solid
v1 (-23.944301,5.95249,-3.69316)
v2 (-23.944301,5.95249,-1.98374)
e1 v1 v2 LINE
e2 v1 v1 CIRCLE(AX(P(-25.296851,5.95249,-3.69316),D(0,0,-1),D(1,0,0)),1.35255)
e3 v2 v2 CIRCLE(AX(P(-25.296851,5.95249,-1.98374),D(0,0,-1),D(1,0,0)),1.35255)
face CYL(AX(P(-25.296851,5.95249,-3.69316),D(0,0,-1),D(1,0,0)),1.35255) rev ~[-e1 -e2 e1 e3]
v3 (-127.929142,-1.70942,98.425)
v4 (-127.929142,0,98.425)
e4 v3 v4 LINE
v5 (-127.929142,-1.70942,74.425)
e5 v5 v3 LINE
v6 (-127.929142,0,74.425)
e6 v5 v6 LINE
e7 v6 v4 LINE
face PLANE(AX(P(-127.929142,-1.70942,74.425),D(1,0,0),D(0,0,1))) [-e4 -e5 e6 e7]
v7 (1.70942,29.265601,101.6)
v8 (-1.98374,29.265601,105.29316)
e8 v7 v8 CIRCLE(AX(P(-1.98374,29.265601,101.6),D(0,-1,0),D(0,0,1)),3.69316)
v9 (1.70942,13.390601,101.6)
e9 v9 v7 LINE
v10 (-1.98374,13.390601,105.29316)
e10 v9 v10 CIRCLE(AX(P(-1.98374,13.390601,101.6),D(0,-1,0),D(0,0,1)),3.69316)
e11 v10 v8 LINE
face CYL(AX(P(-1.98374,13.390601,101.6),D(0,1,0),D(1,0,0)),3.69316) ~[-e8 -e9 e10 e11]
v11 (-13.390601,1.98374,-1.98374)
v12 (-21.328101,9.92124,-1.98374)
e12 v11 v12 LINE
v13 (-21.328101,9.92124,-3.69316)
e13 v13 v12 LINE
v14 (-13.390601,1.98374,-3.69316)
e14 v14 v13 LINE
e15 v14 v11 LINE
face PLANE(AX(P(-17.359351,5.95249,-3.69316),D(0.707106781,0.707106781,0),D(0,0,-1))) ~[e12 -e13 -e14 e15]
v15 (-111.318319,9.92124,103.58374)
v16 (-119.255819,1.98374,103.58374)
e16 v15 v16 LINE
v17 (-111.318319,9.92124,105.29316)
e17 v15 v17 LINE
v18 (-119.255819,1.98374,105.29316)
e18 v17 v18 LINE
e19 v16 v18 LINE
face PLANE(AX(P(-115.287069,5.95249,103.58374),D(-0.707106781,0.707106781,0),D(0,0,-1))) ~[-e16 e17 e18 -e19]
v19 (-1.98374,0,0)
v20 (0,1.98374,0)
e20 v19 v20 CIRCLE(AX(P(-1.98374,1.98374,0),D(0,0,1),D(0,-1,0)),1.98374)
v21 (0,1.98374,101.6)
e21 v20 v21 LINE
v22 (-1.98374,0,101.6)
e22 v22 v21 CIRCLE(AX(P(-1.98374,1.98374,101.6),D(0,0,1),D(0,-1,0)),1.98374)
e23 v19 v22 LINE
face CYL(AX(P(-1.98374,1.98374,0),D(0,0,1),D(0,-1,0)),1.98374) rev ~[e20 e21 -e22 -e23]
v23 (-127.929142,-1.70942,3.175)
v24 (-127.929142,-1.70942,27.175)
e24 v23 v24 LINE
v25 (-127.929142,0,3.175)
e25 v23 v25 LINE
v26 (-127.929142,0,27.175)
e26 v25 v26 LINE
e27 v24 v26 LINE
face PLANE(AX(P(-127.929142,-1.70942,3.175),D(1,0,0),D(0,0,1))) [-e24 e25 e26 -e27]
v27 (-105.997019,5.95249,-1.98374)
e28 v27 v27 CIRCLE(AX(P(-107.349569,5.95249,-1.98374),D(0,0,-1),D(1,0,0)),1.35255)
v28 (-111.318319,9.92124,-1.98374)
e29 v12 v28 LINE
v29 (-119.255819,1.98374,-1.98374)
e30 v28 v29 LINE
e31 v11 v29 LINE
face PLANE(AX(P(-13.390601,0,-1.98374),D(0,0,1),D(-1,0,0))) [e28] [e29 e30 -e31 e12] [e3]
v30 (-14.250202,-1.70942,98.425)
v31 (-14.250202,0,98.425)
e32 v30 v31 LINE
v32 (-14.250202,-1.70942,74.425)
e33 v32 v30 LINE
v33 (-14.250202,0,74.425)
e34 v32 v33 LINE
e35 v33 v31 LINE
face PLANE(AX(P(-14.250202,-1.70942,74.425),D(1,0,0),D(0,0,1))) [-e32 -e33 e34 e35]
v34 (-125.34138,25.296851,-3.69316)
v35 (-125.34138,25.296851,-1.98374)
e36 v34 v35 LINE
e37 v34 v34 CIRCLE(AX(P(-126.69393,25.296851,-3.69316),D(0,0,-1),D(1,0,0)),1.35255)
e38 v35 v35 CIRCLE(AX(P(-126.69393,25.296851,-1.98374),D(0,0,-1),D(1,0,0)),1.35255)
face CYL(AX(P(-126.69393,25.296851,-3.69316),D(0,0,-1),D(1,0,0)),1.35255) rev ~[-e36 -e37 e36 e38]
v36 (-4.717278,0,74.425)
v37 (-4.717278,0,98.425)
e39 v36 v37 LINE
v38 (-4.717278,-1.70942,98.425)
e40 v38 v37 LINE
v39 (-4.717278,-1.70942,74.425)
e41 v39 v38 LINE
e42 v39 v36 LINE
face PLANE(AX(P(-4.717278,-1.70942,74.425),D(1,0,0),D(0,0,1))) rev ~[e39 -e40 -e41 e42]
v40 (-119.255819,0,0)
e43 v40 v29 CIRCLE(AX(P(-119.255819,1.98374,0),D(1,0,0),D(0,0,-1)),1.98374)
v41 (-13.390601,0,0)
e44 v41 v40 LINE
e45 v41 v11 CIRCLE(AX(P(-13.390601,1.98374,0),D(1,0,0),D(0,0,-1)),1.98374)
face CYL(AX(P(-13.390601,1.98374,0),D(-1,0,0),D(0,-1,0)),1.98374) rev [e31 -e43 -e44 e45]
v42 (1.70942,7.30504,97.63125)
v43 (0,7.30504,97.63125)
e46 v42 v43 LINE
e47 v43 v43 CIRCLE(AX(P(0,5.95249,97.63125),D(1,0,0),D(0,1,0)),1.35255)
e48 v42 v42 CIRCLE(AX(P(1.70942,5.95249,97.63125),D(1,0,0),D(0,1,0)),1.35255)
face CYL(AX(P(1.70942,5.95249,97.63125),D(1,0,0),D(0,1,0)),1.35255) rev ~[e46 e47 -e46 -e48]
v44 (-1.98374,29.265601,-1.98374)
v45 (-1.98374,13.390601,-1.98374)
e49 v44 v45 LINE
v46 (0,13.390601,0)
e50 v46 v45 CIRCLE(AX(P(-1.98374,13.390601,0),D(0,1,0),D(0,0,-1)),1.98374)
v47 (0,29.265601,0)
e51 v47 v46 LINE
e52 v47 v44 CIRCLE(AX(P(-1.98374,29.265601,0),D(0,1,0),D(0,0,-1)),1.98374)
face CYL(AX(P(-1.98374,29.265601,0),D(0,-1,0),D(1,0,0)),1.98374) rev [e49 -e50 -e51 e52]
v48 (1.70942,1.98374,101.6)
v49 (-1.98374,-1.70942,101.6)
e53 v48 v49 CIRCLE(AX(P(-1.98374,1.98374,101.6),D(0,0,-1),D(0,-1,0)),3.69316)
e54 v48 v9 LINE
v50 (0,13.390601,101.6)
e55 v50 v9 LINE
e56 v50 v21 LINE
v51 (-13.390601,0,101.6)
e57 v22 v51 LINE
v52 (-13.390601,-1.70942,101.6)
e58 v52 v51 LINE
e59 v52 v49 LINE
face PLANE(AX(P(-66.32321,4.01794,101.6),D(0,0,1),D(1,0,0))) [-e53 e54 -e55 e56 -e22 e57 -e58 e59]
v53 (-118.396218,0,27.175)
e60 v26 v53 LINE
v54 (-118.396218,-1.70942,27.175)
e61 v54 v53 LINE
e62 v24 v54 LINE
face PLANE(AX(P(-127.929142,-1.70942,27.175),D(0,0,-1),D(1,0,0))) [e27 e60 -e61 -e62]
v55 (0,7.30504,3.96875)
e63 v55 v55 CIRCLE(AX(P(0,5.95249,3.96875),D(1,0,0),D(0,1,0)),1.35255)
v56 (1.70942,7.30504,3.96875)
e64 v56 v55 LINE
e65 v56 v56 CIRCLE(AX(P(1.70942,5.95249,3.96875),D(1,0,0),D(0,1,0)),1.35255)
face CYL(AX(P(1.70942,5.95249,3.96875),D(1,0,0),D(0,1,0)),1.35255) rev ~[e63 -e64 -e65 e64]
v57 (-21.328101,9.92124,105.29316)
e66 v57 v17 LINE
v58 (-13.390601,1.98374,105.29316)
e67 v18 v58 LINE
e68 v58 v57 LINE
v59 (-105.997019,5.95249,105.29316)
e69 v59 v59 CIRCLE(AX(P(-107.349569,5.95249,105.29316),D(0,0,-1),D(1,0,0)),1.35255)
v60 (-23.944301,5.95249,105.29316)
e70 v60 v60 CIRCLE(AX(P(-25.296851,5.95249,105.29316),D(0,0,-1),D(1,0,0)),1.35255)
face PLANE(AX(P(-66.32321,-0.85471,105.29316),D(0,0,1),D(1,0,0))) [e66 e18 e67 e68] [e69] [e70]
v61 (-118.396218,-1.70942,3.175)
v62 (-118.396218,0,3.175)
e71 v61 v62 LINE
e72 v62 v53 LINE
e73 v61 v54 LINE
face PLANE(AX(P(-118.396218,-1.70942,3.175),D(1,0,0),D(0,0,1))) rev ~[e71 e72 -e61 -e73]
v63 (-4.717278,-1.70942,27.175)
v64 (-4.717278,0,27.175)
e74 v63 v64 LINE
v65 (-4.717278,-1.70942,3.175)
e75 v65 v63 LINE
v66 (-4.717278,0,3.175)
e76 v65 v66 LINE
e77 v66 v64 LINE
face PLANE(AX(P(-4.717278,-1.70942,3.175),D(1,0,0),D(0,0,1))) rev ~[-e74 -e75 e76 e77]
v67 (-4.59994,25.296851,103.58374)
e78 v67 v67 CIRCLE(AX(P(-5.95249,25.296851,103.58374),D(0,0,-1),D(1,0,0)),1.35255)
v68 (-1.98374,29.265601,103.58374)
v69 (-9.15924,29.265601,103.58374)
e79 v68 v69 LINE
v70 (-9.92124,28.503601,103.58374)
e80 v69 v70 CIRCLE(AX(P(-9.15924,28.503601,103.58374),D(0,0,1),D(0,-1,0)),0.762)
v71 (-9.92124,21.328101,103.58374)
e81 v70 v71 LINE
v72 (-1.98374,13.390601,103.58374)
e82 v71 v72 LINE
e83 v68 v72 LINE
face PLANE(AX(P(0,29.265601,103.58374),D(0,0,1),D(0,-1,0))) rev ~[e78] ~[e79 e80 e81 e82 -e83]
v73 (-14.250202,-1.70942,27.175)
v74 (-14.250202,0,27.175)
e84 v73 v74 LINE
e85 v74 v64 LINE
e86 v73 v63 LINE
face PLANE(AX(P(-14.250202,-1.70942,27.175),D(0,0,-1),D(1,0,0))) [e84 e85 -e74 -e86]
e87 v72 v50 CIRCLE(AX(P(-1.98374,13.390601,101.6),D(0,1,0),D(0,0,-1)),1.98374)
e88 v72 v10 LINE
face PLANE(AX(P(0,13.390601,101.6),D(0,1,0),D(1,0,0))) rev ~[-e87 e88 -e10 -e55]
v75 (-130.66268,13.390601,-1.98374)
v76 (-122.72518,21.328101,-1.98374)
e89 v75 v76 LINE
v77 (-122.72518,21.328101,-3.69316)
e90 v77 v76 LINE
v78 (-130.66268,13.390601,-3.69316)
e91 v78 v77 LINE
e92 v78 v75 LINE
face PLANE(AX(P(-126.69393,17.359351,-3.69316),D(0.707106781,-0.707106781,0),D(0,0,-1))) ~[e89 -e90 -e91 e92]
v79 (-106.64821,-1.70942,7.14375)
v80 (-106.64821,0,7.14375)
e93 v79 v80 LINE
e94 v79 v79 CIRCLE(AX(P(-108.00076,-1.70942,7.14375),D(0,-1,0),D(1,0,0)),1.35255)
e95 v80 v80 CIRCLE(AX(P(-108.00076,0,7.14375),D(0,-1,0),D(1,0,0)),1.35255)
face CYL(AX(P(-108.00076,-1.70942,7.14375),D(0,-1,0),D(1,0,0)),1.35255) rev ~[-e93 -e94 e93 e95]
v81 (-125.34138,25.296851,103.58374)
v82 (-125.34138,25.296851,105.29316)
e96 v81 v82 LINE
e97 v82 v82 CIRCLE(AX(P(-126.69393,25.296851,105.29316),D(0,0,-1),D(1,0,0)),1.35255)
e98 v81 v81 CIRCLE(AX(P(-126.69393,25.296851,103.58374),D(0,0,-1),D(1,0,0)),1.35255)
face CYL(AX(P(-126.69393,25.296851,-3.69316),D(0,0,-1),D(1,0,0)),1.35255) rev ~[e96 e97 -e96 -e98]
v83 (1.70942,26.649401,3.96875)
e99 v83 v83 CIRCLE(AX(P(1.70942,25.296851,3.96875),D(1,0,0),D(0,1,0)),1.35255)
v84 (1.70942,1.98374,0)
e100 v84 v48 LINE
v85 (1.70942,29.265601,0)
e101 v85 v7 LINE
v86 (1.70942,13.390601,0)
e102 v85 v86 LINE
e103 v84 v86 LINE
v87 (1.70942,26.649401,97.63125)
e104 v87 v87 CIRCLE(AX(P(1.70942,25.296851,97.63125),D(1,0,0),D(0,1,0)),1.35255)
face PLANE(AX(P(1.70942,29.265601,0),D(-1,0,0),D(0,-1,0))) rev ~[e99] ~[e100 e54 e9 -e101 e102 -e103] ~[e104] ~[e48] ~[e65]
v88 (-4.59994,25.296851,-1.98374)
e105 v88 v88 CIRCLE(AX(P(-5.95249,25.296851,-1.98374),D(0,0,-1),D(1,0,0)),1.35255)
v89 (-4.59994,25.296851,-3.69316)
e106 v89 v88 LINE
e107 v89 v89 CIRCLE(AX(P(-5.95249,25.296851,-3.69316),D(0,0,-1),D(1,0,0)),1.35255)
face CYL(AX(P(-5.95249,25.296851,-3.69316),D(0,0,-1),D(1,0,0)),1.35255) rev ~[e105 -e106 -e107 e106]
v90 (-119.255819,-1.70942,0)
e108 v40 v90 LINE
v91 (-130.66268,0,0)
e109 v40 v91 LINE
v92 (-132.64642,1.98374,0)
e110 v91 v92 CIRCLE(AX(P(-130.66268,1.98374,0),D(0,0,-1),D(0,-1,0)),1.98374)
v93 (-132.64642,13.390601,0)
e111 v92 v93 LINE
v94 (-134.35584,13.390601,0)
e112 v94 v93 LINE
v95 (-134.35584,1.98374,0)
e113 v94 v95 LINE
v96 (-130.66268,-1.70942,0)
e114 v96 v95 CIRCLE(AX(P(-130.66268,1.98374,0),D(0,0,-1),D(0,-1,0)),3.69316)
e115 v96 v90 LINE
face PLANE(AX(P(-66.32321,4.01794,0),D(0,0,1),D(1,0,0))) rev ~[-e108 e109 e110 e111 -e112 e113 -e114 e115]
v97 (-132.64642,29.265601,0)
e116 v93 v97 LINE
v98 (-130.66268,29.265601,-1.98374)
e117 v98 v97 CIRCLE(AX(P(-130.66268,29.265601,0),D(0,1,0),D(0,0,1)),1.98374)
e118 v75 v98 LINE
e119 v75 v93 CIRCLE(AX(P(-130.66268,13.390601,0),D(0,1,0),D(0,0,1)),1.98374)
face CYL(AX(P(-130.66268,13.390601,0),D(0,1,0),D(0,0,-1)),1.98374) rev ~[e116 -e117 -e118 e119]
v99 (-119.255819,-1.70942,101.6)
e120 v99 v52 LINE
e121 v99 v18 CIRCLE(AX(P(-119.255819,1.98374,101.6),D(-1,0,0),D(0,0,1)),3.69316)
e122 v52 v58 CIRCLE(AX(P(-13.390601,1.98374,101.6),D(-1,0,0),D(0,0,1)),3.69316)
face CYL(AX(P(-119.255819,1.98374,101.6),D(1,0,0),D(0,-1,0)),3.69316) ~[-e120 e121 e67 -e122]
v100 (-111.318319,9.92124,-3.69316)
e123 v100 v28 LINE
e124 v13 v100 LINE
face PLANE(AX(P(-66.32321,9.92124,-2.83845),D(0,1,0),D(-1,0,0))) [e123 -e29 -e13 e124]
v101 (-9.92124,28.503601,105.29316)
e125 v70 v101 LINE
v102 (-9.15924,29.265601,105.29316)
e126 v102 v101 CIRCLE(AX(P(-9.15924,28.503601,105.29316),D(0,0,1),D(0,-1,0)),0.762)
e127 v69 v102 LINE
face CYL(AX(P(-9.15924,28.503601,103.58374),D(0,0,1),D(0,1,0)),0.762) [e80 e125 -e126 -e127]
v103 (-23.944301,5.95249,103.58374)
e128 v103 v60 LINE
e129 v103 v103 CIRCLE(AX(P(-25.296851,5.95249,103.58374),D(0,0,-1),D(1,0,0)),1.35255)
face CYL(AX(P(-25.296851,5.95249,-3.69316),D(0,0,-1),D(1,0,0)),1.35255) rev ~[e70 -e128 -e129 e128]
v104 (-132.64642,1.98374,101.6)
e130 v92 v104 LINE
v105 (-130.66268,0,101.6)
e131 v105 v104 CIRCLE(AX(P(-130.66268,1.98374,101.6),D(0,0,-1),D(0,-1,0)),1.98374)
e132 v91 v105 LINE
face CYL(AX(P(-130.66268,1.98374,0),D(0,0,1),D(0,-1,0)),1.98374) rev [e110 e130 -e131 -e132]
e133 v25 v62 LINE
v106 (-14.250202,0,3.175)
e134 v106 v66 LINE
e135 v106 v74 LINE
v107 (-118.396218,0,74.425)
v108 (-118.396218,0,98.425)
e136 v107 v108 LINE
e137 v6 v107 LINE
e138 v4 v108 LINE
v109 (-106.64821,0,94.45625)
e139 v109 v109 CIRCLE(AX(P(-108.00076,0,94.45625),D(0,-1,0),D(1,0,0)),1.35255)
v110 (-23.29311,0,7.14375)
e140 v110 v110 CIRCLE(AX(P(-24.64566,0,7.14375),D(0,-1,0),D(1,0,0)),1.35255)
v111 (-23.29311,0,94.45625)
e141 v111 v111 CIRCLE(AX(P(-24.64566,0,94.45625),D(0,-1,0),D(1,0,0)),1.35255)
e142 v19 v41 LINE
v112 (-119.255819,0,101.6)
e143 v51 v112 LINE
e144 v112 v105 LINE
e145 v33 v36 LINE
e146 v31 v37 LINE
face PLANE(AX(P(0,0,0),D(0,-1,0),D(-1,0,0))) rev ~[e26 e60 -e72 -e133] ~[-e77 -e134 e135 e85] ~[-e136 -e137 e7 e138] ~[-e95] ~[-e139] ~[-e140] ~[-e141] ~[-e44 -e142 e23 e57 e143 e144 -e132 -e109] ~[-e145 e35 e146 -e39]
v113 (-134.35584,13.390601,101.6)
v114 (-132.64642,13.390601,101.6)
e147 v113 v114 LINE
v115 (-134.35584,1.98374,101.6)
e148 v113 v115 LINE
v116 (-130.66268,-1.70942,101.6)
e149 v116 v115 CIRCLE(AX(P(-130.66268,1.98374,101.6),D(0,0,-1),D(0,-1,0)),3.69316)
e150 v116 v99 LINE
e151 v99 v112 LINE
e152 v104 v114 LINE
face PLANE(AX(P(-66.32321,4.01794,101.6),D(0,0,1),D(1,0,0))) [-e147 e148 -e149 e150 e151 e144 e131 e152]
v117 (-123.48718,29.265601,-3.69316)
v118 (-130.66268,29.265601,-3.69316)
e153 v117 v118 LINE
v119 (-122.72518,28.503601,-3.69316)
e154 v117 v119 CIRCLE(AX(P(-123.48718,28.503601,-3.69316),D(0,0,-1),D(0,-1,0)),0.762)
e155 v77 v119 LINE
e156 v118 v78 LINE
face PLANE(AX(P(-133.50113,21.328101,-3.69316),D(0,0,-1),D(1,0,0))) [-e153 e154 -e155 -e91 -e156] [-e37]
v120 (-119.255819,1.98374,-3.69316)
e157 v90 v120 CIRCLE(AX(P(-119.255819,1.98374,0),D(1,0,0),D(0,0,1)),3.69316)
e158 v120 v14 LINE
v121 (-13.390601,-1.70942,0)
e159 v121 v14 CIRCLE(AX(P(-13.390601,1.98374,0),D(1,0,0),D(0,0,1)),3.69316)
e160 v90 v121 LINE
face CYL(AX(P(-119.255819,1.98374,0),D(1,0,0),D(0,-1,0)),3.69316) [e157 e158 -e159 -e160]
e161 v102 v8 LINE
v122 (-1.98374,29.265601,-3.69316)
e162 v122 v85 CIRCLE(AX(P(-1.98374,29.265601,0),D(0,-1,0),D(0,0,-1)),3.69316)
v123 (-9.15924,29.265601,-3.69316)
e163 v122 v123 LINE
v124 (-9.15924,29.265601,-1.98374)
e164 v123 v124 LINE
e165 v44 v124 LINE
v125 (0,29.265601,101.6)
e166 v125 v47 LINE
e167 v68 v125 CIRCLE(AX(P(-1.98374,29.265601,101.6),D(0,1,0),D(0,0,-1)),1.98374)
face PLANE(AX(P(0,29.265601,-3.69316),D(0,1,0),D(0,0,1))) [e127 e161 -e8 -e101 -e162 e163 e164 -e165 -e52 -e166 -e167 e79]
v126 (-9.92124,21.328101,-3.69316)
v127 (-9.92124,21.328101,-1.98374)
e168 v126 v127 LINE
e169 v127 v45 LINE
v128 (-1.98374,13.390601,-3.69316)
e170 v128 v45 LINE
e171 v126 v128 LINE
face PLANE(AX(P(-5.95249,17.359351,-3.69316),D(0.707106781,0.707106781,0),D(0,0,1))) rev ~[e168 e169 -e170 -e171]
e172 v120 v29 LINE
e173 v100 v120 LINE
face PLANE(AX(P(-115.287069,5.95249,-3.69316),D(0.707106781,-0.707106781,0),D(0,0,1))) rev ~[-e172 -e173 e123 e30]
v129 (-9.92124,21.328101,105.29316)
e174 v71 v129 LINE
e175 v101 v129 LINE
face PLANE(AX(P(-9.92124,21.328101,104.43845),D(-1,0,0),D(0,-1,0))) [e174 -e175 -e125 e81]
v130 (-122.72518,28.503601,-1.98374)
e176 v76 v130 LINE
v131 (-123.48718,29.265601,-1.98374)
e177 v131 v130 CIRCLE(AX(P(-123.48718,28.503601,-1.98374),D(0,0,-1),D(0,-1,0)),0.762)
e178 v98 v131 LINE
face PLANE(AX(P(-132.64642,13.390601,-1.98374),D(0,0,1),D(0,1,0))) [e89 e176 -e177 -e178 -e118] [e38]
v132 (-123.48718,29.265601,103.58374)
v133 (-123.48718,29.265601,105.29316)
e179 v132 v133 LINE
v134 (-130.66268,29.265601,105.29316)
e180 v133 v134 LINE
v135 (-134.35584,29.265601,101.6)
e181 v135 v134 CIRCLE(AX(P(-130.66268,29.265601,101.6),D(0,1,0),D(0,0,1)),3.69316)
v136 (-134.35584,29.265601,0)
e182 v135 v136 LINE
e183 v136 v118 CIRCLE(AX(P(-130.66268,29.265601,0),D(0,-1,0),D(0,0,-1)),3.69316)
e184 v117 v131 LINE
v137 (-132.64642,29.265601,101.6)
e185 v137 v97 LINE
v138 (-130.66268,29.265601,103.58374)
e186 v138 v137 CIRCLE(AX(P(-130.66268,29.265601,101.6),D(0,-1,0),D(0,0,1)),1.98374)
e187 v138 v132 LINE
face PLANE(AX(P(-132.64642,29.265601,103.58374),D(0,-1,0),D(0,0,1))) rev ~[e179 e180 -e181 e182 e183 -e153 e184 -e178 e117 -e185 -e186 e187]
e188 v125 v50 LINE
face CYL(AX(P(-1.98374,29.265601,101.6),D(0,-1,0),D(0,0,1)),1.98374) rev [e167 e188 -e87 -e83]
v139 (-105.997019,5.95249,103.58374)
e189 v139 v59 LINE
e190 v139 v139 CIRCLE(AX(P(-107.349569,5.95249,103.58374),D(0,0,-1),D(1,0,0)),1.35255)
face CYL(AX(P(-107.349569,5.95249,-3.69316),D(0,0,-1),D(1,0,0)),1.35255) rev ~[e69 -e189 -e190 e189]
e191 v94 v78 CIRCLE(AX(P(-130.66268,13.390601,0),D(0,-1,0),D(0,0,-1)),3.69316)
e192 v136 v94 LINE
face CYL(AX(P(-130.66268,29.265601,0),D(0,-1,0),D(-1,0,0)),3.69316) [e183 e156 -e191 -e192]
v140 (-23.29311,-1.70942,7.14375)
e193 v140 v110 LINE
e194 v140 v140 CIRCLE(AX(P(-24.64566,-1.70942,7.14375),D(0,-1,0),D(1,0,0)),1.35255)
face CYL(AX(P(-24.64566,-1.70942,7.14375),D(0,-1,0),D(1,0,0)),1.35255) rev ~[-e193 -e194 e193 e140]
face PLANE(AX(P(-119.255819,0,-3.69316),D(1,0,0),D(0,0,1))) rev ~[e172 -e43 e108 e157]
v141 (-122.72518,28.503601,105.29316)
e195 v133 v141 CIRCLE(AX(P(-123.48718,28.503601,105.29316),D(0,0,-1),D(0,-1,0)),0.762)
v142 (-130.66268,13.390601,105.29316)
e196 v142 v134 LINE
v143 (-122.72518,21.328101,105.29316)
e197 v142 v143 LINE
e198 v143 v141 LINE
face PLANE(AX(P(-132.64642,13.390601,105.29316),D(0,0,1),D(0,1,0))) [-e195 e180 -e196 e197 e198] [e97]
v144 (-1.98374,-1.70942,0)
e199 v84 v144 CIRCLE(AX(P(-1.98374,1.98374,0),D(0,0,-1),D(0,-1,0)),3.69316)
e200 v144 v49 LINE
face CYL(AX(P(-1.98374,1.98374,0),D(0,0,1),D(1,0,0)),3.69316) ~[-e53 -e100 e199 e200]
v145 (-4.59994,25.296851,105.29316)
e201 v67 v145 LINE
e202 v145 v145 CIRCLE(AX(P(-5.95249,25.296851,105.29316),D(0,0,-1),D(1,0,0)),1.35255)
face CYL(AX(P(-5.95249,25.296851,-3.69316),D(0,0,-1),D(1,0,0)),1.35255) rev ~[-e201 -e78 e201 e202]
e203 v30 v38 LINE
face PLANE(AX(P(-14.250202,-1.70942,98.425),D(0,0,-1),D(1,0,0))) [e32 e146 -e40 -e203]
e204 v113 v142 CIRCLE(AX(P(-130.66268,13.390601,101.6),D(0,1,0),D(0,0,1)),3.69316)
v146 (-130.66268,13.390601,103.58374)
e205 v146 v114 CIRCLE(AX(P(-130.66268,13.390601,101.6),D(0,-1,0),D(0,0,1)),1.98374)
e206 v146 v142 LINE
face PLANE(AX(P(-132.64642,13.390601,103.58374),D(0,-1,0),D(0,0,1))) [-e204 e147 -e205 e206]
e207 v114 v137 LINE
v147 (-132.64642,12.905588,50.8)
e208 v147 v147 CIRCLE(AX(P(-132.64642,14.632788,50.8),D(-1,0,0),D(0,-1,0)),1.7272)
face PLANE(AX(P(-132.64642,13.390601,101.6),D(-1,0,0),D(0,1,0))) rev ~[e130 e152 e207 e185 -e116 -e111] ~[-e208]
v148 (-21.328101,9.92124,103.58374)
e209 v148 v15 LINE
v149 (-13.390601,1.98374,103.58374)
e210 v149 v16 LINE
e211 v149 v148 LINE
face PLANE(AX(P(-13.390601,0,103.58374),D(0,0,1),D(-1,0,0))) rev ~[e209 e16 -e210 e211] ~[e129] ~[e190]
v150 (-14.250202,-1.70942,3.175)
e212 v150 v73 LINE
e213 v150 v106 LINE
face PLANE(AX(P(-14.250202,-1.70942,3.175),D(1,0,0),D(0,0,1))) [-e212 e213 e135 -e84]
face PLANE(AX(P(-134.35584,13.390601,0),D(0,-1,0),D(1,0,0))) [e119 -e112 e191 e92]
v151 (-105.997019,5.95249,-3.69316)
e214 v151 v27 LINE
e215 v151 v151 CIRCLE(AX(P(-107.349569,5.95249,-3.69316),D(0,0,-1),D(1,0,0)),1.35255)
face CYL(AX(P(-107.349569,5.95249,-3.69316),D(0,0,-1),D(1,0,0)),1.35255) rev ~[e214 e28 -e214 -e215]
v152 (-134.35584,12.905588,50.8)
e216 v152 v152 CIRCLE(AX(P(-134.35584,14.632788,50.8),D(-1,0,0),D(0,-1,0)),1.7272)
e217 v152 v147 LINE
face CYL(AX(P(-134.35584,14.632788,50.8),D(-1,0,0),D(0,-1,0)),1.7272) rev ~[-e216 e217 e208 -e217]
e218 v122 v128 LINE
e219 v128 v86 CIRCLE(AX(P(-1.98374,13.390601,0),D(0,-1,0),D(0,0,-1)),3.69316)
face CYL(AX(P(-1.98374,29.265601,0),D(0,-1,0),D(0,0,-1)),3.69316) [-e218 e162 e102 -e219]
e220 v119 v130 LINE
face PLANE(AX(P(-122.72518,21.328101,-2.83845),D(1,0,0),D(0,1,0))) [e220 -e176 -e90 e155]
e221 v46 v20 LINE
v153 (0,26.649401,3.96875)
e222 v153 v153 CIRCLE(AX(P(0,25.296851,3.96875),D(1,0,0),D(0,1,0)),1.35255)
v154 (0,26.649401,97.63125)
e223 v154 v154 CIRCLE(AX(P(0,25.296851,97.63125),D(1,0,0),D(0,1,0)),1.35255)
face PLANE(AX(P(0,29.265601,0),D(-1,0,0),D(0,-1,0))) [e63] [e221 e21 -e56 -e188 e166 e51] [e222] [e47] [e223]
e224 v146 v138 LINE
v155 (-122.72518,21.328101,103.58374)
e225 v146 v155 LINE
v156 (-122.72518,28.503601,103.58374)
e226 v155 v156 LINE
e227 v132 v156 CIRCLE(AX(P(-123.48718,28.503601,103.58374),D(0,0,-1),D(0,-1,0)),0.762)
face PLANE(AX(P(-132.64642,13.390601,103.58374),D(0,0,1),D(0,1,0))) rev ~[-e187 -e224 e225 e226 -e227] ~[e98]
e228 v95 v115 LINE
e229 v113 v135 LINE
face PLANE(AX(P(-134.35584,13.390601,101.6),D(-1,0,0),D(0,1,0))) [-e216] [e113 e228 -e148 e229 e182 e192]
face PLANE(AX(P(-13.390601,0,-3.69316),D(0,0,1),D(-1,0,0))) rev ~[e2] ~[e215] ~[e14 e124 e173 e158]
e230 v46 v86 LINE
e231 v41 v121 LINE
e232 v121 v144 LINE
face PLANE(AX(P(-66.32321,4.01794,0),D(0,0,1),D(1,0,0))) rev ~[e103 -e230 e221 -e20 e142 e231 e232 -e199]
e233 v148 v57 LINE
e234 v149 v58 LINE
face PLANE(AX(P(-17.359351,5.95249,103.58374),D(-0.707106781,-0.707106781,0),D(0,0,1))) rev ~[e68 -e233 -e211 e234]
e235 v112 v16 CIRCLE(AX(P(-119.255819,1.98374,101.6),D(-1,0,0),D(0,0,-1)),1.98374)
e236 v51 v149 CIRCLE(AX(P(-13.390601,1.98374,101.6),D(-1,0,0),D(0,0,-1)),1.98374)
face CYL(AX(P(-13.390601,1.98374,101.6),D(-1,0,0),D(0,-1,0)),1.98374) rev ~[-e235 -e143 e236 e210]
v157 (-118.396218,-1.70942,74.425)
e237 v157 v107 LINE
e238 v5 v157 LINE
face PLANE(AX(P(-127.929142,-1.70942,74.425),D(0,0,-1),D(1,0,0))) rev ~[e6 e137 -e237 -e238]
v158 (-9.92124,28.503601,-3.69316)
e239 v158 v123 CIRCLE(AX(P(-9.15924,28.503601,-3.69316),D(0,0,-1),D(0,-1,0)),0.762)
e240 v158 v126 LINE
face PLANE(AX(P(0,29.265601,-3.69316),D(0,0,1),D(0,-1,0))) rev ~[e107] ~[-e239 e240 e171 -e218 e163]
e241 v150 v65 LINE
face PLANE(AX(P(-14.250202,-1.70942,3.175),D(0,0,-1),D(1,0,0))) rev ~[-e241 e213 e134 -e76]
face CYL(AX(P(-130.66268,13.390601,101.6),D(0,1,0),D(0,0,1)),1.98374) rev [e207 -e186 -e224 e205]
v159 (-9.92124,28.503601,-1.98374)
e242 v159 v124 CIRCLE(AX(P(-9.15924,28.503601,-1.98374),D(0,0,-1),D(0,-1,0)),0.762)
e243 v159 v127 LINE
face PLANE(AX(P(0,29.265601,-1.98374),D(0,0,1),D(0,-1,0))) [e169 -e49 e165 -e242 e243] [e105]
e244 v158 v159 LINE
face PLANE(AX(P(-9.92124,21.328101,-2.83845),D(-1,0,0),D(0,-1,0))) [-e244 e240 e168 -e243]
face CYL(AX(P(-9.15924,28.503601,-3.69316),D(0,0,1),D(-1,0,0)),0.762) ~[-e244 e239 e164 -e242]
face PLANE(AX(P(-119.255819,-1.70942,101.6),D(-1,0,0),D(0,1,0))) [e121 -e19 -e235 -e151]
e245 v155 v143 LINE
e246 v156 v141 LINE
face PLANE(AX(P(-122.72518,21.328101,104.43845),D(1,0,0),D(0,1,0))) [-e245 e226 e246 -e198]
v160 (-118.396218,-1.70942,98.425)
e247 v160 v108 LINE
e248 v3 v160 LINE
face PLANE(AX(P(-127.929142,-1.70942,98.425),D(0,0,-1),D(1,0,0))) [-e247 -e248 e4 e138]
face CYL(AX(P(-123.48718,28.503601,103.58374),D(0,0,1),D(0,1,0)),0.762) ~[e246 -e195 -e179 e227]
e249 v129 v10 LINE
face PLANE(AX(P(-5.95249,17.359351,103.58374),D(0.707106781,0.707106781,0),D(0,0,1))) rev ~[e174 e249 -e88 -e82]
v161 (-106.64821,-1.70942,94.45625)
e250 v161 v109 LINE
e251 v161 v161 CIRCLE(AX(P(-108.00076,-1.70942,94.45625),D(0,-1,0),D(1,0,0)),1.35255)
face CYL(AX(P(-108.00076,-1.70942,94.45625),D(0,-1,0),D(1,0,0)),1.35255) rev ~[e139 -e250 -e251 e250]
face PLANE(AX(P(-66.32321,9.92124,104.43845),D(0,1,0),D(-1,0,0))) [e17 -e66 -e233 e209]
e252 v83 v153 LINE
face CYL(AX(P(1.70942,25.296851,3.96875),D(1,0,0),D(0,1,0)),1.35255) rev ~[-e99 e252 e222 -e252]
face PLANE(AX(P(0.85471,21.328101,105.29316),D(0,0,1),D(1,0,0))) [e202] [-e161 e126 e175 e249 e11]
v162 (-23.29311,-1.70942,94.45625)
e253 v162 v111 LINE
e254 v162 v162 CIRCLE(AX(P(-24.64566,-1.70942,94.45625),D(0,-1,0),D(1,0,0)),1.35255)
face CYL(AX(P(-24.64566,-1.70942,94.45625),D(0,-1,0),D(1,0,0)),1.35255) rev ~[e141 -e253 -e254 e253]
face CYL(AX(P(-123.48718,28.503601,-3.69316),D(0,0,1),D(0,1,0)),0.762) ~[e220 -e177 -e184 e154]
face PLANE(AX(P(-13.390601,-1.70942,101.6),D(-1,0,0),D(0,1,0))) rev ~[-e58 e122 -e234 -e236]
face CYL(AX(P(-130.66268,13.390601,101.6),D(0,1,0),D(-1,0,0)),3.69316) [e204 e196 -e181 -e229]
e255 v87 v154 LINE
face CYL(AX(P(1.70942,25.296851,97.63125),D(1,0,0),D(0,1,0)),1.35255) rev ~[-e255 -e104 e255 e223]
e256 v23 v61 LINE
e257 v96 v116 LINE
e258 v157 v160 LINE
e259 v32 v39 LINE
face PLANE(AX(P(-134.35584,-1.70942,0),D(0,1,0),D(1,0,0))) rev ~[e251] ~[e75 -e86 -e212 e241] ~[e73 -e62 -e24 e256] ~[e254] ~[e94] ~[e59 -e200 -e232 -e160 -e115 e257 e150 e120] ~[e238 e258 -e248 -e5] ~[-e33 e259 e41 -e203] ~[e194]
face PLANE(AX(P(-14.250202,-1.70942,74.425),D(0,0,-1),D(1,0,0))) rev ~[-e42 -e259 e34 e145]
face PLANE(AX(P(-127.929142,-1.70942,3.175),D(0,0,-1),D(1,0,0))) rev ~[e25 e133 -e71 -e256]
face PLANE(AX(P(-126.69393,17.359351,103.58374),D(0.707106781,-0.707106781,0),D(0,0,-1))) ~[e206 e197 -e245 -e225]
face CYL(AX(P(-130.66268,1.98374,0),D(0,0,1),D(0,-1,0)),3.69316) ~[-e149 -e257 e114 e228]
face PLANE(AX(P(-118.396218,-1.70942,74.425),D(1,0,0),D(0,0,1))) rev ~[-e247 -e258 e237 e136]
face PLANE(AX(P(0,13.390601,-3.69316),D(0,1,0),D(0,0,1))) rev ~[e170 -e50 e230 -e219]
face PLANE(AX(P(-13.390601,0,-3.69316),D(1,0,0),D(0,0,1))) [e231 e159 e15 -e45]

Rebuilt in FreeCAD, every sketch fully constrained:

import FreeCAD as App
import Part
import Sketcher
from FreeCAD import Vector
Q = App.Units.Quantity


def edges_at(feature, points):
    """Names of the edges that pass closest to the given points."""
    edges = feature.Shape.Edges
    near = lambda p: min(range(len(edges)), key=lambda i: edges[i].distToShape(Part.Vertex(*p))[0])
    return sorted({f"Edge{near(p) + 1}" for p in points})


def add_polygon(sketch, points):
    """Adds a closed chain of lines whose ends are joined by coincident constraints."""
    first, n = sketch.GeometryCount, len(points)
    for a, b in zip(points, points[1:] + points[:1]):
        sketch.addGeometry(Part.LineSegment(App.Vector(*a, 0), App.Vector(*b, 0)), False)
    for i in range(n):
        sketch.addConstraint(Sketcher.Constraint("Coincident", first + i, 2, first + (i + 1) % n, 1))

doc = App.newDocument("Part")
body = doc.addObject("PartDesign::Body", "Body")

sketch1 = doc.addObject("Sketcher::SketchObject", "Sketch")
body.addObject(sketch1)
sketch1.AttachmentSupport = (doc.XY_Plane, [""])
sketch1.MapMode = "FlatFace"
add_polygon(sketch1, [(0, 29.265601), (0, 0), (-132.64642, 0), (-132.64642, 29.265601), (-134.35584, 29.265601), (-134.35584, -1.70942), (1.70942, -1.70942), (1.70942, 29.265601)])
sketch1.addConstraint(Sketcher.Constraint("Vertical", 0))
sketch1.addConstraint(Sketcher.Constraint("Horizontal", 1))
sketch1.addConstraint(Sketcher.Constraint("Vertical", 2))
sketch1.addConstraint(Sketcher.Constraint("Horizontal", 3))
sketch1.addConstraint(Sketcher.Constraint("Vertical", 4))
sketch1.addConstraint(Sketcher.Constraint("Horizontal", 5))
sketch1.addConstraint(Sketcher.Constraint("Vertical", 6))
sketch1.addConstraint(Sketcher.Constraint("Horizontal", 7))
sketch1.addConstraint(Sketcher.Constraint("Coincident", 0, 2, -1, 1))
sketch1.addConstraint(Sketcher.Constraint("Horizontal", 3, 2, 6, 2))
sketch1.addConstraint(Sketcher.Constraint("Equal", 3, 7))
sketch1.addConstraint(Sketcher.Constraint("DistanceX", 1, 2, 1, 1, Q("5.2223 in")))
sketch1.addConstraint(Sketcher.Constraint("DistanceX", 3, 2, 3, 1, Q("0.0673 in")))
sketch1.addConstraint(Sketcher.Constraint("DistanceY", 0, 2, 0, 1, Q("29.265601 mm")))
sketch1.addConstraint(Sketcher.Constraint("DistanceY", 4, 2, -1, 1, Q("0.0673 in")))
pad1 = doc.addObject("PartDesign::Pad", "Pad")
body.addObject(pad1)
pad1.Profile = sketch1
pad1.Length = Q("4 in")

sketch2 = doc.addObject("Sketcher::SketchObject", "Sketch001")
body.addObject(sketch2)
sketch2.AttachmentSupport = (doc.XY_Plane, [""])
sketch2.MapMode = "FlatFace"
add_polygon(sketch2, [(0, 13.390601), (0, 29.265601), (1.70942, 29.265601), (1.70942, 13.390601)])
add_polygon(sketch2, [(-119.255819, -1.70942), (-119.255819, 0), (-13.390601, 0), (-13.390601, -1.70942)])
add_polygon(sketch2, [(-134.35584, 13.390601), (-134.35584, 29.265601), (-132.64642, 29.265601), (-132.64642, 13.390601)])
sketch2.addConstraint(Sketcher.Constraint("Vertical", 0))
sketch2.addConstraint(Sketcher.Constraint("Horizontal", 1))
sketch2.addConstraint(Sketcher.Constraint("Vertical", 2))
sketch2.addConstraint(Sketcher.Constraint("Horizontal", 3))
sketch2.addConstraint(Sketcher.Constraint("Vertical", 4))
sketch2.addConstraint(Sketcher.Constraint("Horizontal", 5))
sketch2.addConstraint(Sketcher.Constraint("Vertical", 6))
sketch2.addConstraint(Sketcher.Constraint("Horizontal", 7))
sketch2.addConstraint(Sketcher.Constraint("Vertical", 8))
sketch2.addConstraint(Sketcher.Constraint("Horizontal", 9))
sketch2.addConstraint(Sketcher.Constraint("Vertical", 10))
sketch2.addConstraint(Sketcher.Constraint("Horizontal", 11))
sketch2.addConstraint(Sketcher.Constraint("PointOnObject", 0, 2, -2))
sketch2.addConstraint(Sketcher.Constraint("PointOnObject", 4, 2, -1))
sketch2.addConstraint(Sketcher.Constraint("Horizontal", 1, 2, 8, 2))
sketch2.addConstraint(Sketcher.Constraint("Horizontal", 3, 2, 10, 2))
sketch2.addConstraint(Sketcher.Constraint("Equal", 3, 9))
sketch2.addConstraint(Sketcher.Constraint("Equal", 11, 4))
sketch2.addConstraint(Sketcher.Constraint("DistanceY", 0, 1, 0, 2, Q("0.625 in")))
sketch2.addConstraint(Sketcher.Constraint("DistanceX", 1, 1, 1, 2, Q("0.0673 in")))
sketch2.addConstraint(Sketcher.Constraint("DistanceX", 8, 2, -1, 1, Q("5.2896 in")))
sketch2.addConstraint(Sketcher.Constraint("DistanceX", 5, 1, 5, 2, Q("105.865218 mm")))
sketch2.addConstraint(Sketcher.Constraint("DistanceY", -1, 1, 0, 2, Q("29.265601 mm")))
sketch2.addConstraint(Sketcher.Constraint("DistanceX", 5, 2, -1, 1, Q("13.390601 mm")))
pad2 = doc.addObject("PartDesign::Pad", "Pad001")
body.addObject(pad2)
pad2.Profile = sketch2
pad2.Length = Q("0.1454 in")
pad2.Reversed = True

sketch3 = doc.addObject("Sketcher::SketchObject", "Sketch002")
body.addObject(sketch3)
sketch3.AttachmentSupport = (doc.XY_Plane, [""])
sketch3.MapMode = "FlatFace"
sketch3.AttachmentOffset = App.Placement(Vector(0, 0, 4 * 25.4), App.Rotation())
add_polygon(sketch3, [(-134.35584, 29.265601), (-134.35584, 13.390601), (-132.64642, 13.390601), (-132.64642, 29.265601)])
add_polygon(sketch3, [(0, 29.265601), (0, 13.390601), (1.70942, 13.390601), (1.70942, 29.265601)])
add_polygon(sketch3, [(-119.255819, 0), (-119.255819, -1.70942), (-13.390601, -1.70942), (-13.390601, 0)])
sketch3.addConstraint(Sketcher.Constraint("Vertical", 0))
sketch3.addConstraint(Sketcher.Constraint("Horizontal", 1))
sketch3.addConstraint(Sketcher.Constraint("Vertical", 2))
sketch3.addConstraint(Sketcher.Constraint("Horizontal", 3))
sketch3.addConstraint(Sketcher.Constraint("Vertical", 4))
sketch3.addConstraint(Sketcher.Constraint("Horizontal", 5))
sketch3.addConstraint(Sketcher.Constraint("Vertical", 6))
sketch3.addConstraint(Sketcher.Constraint("Horizontal", 7))
sketch3.addConstraint(Sketcher.Constraint("Vertical", 8))
sketch3.addConstraint(Sketcher.Constraint("Horizontal", 9))
sketch3.addConstraint(Sketcher.Constraint("Vertical", 10))
sketch3.addConstraint(Sketcher.Constraint("Horizontal", 11))
sketch3.addConstraint(Sketcher.Constraint("PointOnObject", 4, 2, -2))
sketch3.addConstraint(Sketcher.Constraint("PointOnObject", 10, 2, -1))
sketch3.addConstraint(Sketcher.Constraint("Horizontal", 1, 2, 4, 2))
sketch3.addConstraint(Sketcher.Constraint("Horizontal", 3, 2, 6, 2))
sketch3.addConstraint(Sketcher.Constraint("Equal", 3, 5))
sketch3.addConstraint(Sketcher.Constraint("Equal", 7, 8))
sketch3.addConstraint(Sketcher.Constraint("DistanceY", 0, 2, 0, 1, Q("0.625 in")))
sketch3.addConstraint(Sketcher.Constraint("DistanceX", 1, 1, 1, 2, Q("0.0673 in")))
sketch3.addConstraint(Sketcher.Constraint("DistanceX", 0, 2, -1, 1, Q("5.2896 in")))
sketch3.addConstraint(Sketcher.Constraint("DistanceX", 9, 1, 9, 2, Q("105.865218 mm")))
sketch3.addConstraint(Sketcher.Constraint("DistanceY", -1, 1, 0, 2, Q("13.390601 mm")))
sketch3.addConstraint(Sketcher.Constraint("DistanceX", 9, 2, -1, 1, Q("13.390601 mm")))
pad3 = doc.addObject("PartDesign::Pad", "Pad002")
body.addObject(pad3)
pad3.Profile = sketch3
pad3.Length = Q("0.1454 in")

sketch4 = doc.addObject("Sketcher::SketchObject", "Sketch003")
body.addObject(sketch4)
sketch4.AttachmentSupport = (doc.XZ_Plane, [""])
sketch4.MapMode = "FlatFace"
add_polygon(sketch4, [(-13.390601, -1.98374), (-13.390601, -3.69316), (-119.255819, -3.69316), (-119.255819, -1.98374)])
add_polygon(sketch4, [(-13.390601, 105.29316), (-13.390601, 103.58374), (-119.255819, 103.58374), (-119.255819, 105.29316)])
sketch4.addConstraint(Sketcher.Constraint("Vertical", 0))
sketch4.addConstraint(Sketcher.Constraint("Horizontal", 1))
sketch4.addConstraint(Sketcher.Constraint("Vertical", 2))
sketch4.addConstraint(Sketcher.Constraint("Horizontal", 3))
sketch4.addConstraint(Sketcher.Constraint("Vertical", 4))
sketch4.addConstraint(Sketcher.Constraint("Horizontal", 5))
sketch4.addConstraint(Sketcher.Constraint("Vertical", 6))
sketch4.addConstraint(Sketcher.Constraint("Horizontal", 7))
sketch4.addConstraint(Sketcher.Constraint("Vertical", 3, 2, 4, 2))
sketch4.addConstraint(Sketcher.Constraint("Vertical", 2, 2, 5, 2))
sketch4.addConstraint(Sketcher.Constraint("Equal", 2, 4))
sketch4.addConstraint(Sketcher.Constraint("DistanceY", 0, 2, 0, 1, Q("0.0673 in")))
sketch4.addConstraint(Sketcher.Constraint("DistanceY", 0, 2, -1, 1, Q("0.1454 in")))
sketch4.addConstraint(Sketcher.Constraint("DistanceY", -1, 1, 4, 2, Q("4.0781 in")))
sketch4.addConstraint(Sketcher.Constraint("DistanceX", 1, 2, 1, 1, Q("105.865218 mm")))
sketch4.addConstraint(Sketcher.Constraint("DistanceX", 0, 2, -1, 1, Q("13.390601 mm")))
pad4 = doc.addObject("PartDesign::Pad", "Pad003")
body.addObject(pad4)
pad4.Profile = sketch4
pad4.Length = Q("0.3906 in")
pad4.Reversed = True

sketch5 = doc.addObject("Sketcher::SketchObject", "Sketch004")
body.addObject(sketch5)
sketch5.AttachmentSupport = (doc.YZ_Plane, [""])
sketch5.MapMode = "FlatFace"
sketch5.AttachmentOffset = App.Placement(Vector(0, 0, -5.2223 * 25.4), App.Rotation())
add_polygon(sketch5, [(13.390601, 105.29316), (13.390601, 103.58374), (29.265601, 103.58374), (29.265601, 105.29316)])
add_polygon(sketch5, [(13.390601, -1.98374), (13.390601, -3.69316), (29.265601, -3.69316), (29.265601, -1.98374)])
sketch5.addConstraint(Sketcher.Constraint("Vertical", 0))
sketch5.addConstraint(Sketcher.Constraint("Horizontal", 1))
sketch5.addConstraint(Sketcher.Constraint("Vertical", 2))
sketch5.addConstraint(Sketcher.Constraint("Horizontal", 3))
sketch5.addConstraint(Sketcher.Constraint("Vertical", 4))
sketch5.addConstraint(Sketcher.Constraint("Horizontal", 5))
sketch5.addConstraint(Sketcher.Constraint("Vertical", 6))
sketch5.addConstraint(Sketcher.Constraint("Horizontal", 7))
sketch5.addConstraint(Sketcher.Constraint("Vertical", 3, 2, 4, 2))
sketch5.addConstraint(Sketcher.Constraint("Vertical", 2, 2, 5, 2))
sketch5.addConstraint(Sketcher.Constraint("Equal", 2, 4))
sketch5.addConstraint(Sketcher.Constraint("DistanceX", 1, 1, 1, 2, Q("0.625 in")))
sketch5.addConstraint(Sketcher.Constraint("DistanceY", 0, 2, 0, 1, Q("0.0673 in")))
sketch5.addConstraint(Sketcher.Constraint("DistanceY", -1, 1, 0, 2, Q("4.0781 in")))
sketch5.addConstraint(Sketcher.Constraint("DistanceY", 4, 2, -1, 1, Q("0.1454 in")))
sketch5.addConstraint(Sketcher.Constraint("DistanceX", -1, 1, 0, 2, Q("13.390601 mm")))
pad5 = doc.addObject("PartDesign::Pad", "Pad004")
body.addObject(pad5)
pad5.Profile = sketch5
pad5.Length = Q("0.3906 in")

sketch6 = doc.addObject("Sketcher::SketchObject", "Sketch005")
body.addObject(sketch6)
sketch6.AttachmentSupport = (doc.YZ_Plane, [""])
sketch6.MapMode = "FlatFace"
add_polygon(sketch6, [(29.265601, -1.98374), (29.265601, -3.69316), (13.390601, -3.69316), (13.390601, -1.98374)])
add_polygon(sketch6, [(29.265601, 105.29316), (29.265601, 103.58374), (13.390601, 103.58374), (13.390601, 105.29316)])
sketch6.addConstraint(Sketcher.Constraint("Vertical", 0))
sketch6.addConstraint(Sketcher.Constraint("Horizontal", 1))
sketch6.addConstraint(Sketcher.Constraint("Vertical", 2))
sketch6.addConstraint(Sketcher.Constraint("Horizontal", 3))
sketch6.addConstraint(Sketcher.Constraint("Vertical", 4))
sketch6.addConstraint(Sketcher.Constraint("Horizontal", 5))
sketch6.addConstraint(Sketcher.Constraint("Vertical", 6))
sketch6.addConstraint(Sketcher.Constraint("Horizontal", 7))
sketch6.addConstraint(Sketcher.Constraint("Vertical", 3, 2, 4, 2))
sketch6.addConstraint(Sketcher.Constraint("Vertical", 2, 2, 5, 2))
sketch6.addConstraint(Sketcher.Constraint("Equal", 2, 4))
sketch6.addConstraint(Sketcher.Constraint("DistanceX", 1, 2, 1, 1, Q("0.625 in")))
sketch6.addConstraint(Sketcher.Constraint("DistanceY", 0, 2, 0, 1, Q("0.0673 in")))
sketch6.addConstraint(Sketcher.Constraint("DistanceY", 0, 2, -1, 1, Q("0.1454 in")))
sketch6.addConstraint(Sketcher.Constraint("DistanceY", -1, 1, 4, 2, Q("4.0781 in")))
sketch6.addConstraint(Sketcher.Constraint("DistanceX", -1, 1, 0, 2, Q("29.265601 mm")))
pad6 = doc.addObject("PartDesign::Pad", "Pad005")
body.addObject(pad6)
pad6.Profile = sketch6
pad6.Length = Q("0.3906 in")
pad6.Reversed = True
doc.recompute()

fillet = doc.addObject("PartDesign::Fillet", "Fillet")
body.addObject(fillet)
fillet.Base = (pad6, edges_at(pad6, [
    (0, 21.328, 103.584),
    (-66.323, 0, 103.584),
    (-132.646, 21.328, 103.584),
    (-132.646, 21.328, -1.984),
    (-66.323, 0, -1.984),
    (0, 21.328, -1.984),
    (0, 0, 50.8),
    (-132.646, 0, 50.8),
]))
fillet.Radius = Q("0.0781 in")
doc.recompute()

fillet2 = doc.addObject("PartDesign::Fillet", "Fillet001")
body.addObject(fillet2)
fillet2.Base = (fillet, edges_at(fillet, [
    (-134.356, 21.328, -3.693),
    (-66.323, -1.709, -3.693),
    (-134.356, -1.709, 50.8),
    (-66.323, -1.709, 105.293),
    (-134.356, 21.328, 105.293),
    (1.709, 21.328, -3.693),
    (1.709, -1.709, 50.8),
    (1.709, 21.328, 105.293),
]))
fillet2.Radius = Q("0.1454 in")
doc.recompute()

chamfer = doc.addObject("PartDesign::Chamfer", "Chamfer")
body.addObject(chamfer)
chamfer.Base = (fillet2, edges_at(fillet2, [
    (-122.725, 13.391, 104.438),
    (-119.256, 9.921, 104.438),
    (-13.391, 9.921, 104.438),
    (-9.921, 13.391, 104.438),
    (-13.391, 9.921, -2.838),
    (-9.921, 13.391, -2.838),
    (-122.725, 13.391, -2.838),
    (-119.256, 9.921, -2.838),
]))
chamfer.Size = Q("0.3125 in")

sketch7 = doc.addObject("Sketcher::SketchObject", "Sketch006")
body.addObject(sketch7)
sketch7.AttachmentSupport = (doc.XY_Plane, [""])
sketch7.MapMode = "FlatFace"
sketch7.AttachmentOffset = App.Placement(Vector(0, 0, -0.1454 * 25.4), App.Rotation())
sketch7.addGeometry(Part.Circle(Vector(-25.296851, 5.95249, 0), Vector(0, 0, 1), 1.35255), False)
sketch7.addGeometry(Part.Circle(Vector(-107.349569, 5.95249, 0), Vector(0, 0, 1), 1.35255), False)
sketch7.addGeometry(Part.Circle(Vector(-126.69393, 25.296851, 0), Vector(0, 0, 1), 1.35255), False)
sketch7.addGeometry(Part.Circle(Vector(-5.95249, 25.296851, 0), Vector(0, 0, 1), 1.35255), False)
sketch7.addConstraint(Sketcher.Constraint("Equal", 0, 1))
sketch7.addConstraint(Sketcher.Constraint("Equal", 1, 2))
sketch7.addConstraint(Sketcher.Constraint("Equal", 2, 3))
sketch7.addConstraint(Sketcher.Constraint("Horizontal", 0, 3, 1, 3))
sketch7.addConstraint(Sketcher.Constraint("Horizontal", 2, 3, 3, 3))
sketch7.addConstraint(Sketcher.Constraint("Diameter", 0, Q("0.1065 in")))
sketch7.addConstraint(Sketcher.Constraint("DistanceX", 2, 3, 3, 3, Q("4.7536 in")))
sketch7.addConstraint(Sketcher.Constraint("DistanceX", 0, 3, -1, 1, Q("25.296851 mm")))
sketch7.addConstraint(Sketcher.Constraint("DistanceY", -1, 1, 0, 3, Q("5.95249 mm")))
sketch7.addConstraint(Sketcher.Constraint("DistanceX", 1, 3, -1, 1, Q("107.349569 mm")))
sketch7.addConstraint(Sketcher.Constraint("DistanceX", 2, 3, -1, 1, Q("126.69393 mm")))
sketch7.addConstraint(Sketcher.Constraint("DistanceY", -1, 1, 2, 3, Q("25.296851 mm")))
pocket1 = doc.addObject("PartDesign::Pocket", "Pocket")
body.addObject(pocket1)
pocket1.Profile = sketch7
pocket1.Type = "ThroughAll"
pocket1.Reversed = True
doc.recompute()

fillet3 = doc.addObject("PartDesign::Fillet", "Fillet002")
body.addObject(fillet3)
fillet3.Base = (pocket1, edges_at(pocket1, [
    (-122.725, 29.266, -2.838),
    (-122.725, 29.266, 104.438),
    (-9.921, 29.266, 104.438),
    (-9.921, 29.266, -2.838),
]))
fillet3.Radius = Q("0.03 in")

sketch8 = doc.addObject("Sketcher::SketchObject", "Sketch007")
body.addObject(sketch8)
sketch8.AttachmentSupport = (doc.YZ_Plane, [""])
sketch8.MapMode = "FlatFace"
sketch8.AttachmentOffset = App.Placement(Vector(0, 0, 0.0673 * 25.4), App.Rotation())
sketch8.addGeometry(Part.Circle(Vector(25.296851, 97.63125, 0), Vector(0, 0, 1), 1.35255), False)
sketch8.addGeometry(Part.Circle(Vector(25.296851, 3.96875, 0), Vector(0, 0, 1), 1.35255), False)
sketch8.addGeometry(Part.Circle(Vector(5.95249, 3.96875, 0), Vector(0, 0, 1), 1.35255), False)
sketch8.addGeometry(Part.Circle(Vector(5.95249, 97.63125, 0), Vector(0, 0, 1), 1.35255), False)
sketch8.addConstraint(Sketcher.Constraint("Equal", 0, 1))
sketch8.addConstraint(Sketcher.Constraint("Equal", 1, 2))
sketch8.addConstraint(Sketcher.Constraint("Equal", 2, 3))
sketch8.addConstraint(Sketcher.Constraint("Horizontal", 1, 3, 2, 3))
sketch8.addConstraint(Sketcher.Constraint("Horizontal", 0, 3, 3, 3))
sketch8.addConstraint(Sketcher.Constraint("Vertical", 0, 3, 1, 3))
sketch8.addConstraint(Sketcher.Constraint("Vertical", 2, 3, 3, 3))
sketch8.addConstraint(Sketcher.Constraint("Diameter", 0, Q("0.1065 in")))
sketch8.addConstraint(Sketcher.Constraint("DistanceY", -1, 1, 0, 3, Q("3.84375 in")))
sketch8.addConstraint(Sketcher.Constraint("DistanceY", -1, 1, 1, 3, Q("0.15625 in")))
sketch8.addConstraint(Sketcher.Constraint("DistanceX", -1, 1, 0, 3, Q("25.296851 mm")))
sketch8.addConstraint(Sketcher.Constraint("DistanceX", -1, 1, 2, 3, Q("5.95249 mm")))
pocket2 = doc.addObject("PartDesign::Pocket", "Pocket001")
body.addObject(pocket2)
pocket2.Profile = sketch8
pocket2.Length = Q("0.0673 in")

sketch9 = doc.addObject("Sketcher::SketchObject", "Sketch008")
body.addObject(sketch9)
sketch9.AttachmentSupport = (doc.XZ_Plane, [""])
sketch9.MapMode = "FlatFace"
sketch9.AttachmentOffset = App.Placement(Vector(0, 0, 0.0673 * 25.4), App.Rotation())
add_polygon(sketch9, [(-14.250202, 27.175), (-14.250202, 3.175), (-4.717278, 3.175), (-4.717278, 27.175)])
add_polygon(sketch9, [(-127.929142, 27.175), (-127.929142, 3.175), (-118.396218, 3.175), (-118.396218, 27.175)])
add_polygon(sketch9, [(-127.929142, 98.425), (-127.929142, 74.425), (-118.396218, 74.425), (-118.396218, 98.425)])
add_polygon(sketch9, [(-14.250202, 98.425), (-14.250202, 74.425), (-4.717278, 74.425), (-4.717278, 98.425)])
sketch9.addGeometry(Part.Circle(Vector(-24.64566, 7.14375, 0), Vector(0, 0, 1), 1.35255), False)
sketch9.addGeometry(Part.Circle(Vector(-108.00076, 7.14375, 0), Vector(0, 0, 1), 1.35255), False)
sketch9.addGeometry(Part.Circle(Vector(-108.00076, 94.45625, 0), Vector(0, 0, 1), 1.35255), False)
sketch9.addGeometry(Part.Circle(Vector(-24.64566, 94.45625, 0), Vector(0, 0, 1), 1.35255), False)
sketch9.addConstraint(Sketcher.Constraint("Vertical", 0))
sketch9.addConstraint(Sketcher.Constraint("Horizontal", 1))
sketch9.addConstraint(Sketcher.Constraint("Vertical", 2))
sketch9.addConstraint(Sketcher.Constraint("Horizontal", 3))
sketch9.addConstraint(Sketcher.Constraint("Vertical", 4))
sketch9.addConstraint(Sketcher.Constraint("Horizontal", 5))
sketch9.addConstraint(Sketcher.Constraint("Vertical", 6))
sketch9.addConstraint(Sketcher.Constraint("Horizontal", 7))
sketch9.addConstraint(Sketcher.Constraint("Vertical", 8))
sketch9.addConstraint(Sketcher.Constraint("Horizontal", 9))
sketch9.addConstraint(Sketcher.Constraint("Vertical", 10))
sketch9.addConstraint(Sketcher.Constraint("Horizontal", 11))
sketch9.addConstraint(Sketcher.Constraint("Vertical", 12))
sketch9.addConstraint(Sketcher.Constraint("Horizontal", 13))
sketch9.addConstraint(Sketcher.Constraint("Vertical", 14))
sketch9.addConstraint(Sketcher.Constraint("Horizontal", 15))
sketch9.addConstraint(Sketcher.Constraint("Equal", 16, 17))
sketch9.addConstraint(Sketcher.Constraint("Equal", 17, 18))
sketch9.addConstraint(Sketcher.Constraint("Equal", 18, 19))
sketch9.addConstraint(Sketcher.Constraint("Horizontal", 16, 3, 17, 3))
sketch9.addConstraint(Sketcher.Constraint("Horizontal", 18, 3, 19, 3))
sketch9.addConstraint(Sketcher.Constraint("Horizontal", 1, 2, 4, 2))
sketch9.addConstraint(Sketcher.Constraint("Horizontal", 3, 2, 6, 2))
sketch9.addConstraint(Sketcher.Constraint("Horizontal", 9, 2, 12, 2))
sketch9.addConstraint(Sketcher.Constraint("Horizontal", 11, 2, 14, 2))
sketch9.addConstraint(Sketcher.Constraint("Vertical", 17, 3, 18, 3))
sketch9.addConstraint(Sketcher.Constraint("Vertical", 16, 3, 19, 3))
sketch9.addConstraint(Sketcher.Constraint("Vertical", 7, 2, 8, 2))
sketch9.addConstraint(Sketcher.Constraint("Vertical", 6, 2, 9, 2))
sketch9.addConstraint(Sketcher.Constraint("Vertical", 3, 2, 12, 2))
sketch9.addConstraint(Sketcher.Constraint("Vertical", 2, 2, 13, 2))
sketch9.addConstraint(Sketcher.Constraint("Equal", 3, 5))
sketch9.addConstraint(Sketcher.Constraint("Equal", 6, 8))
sketch9.addConstraint(Sketcher.Constraint("Diameter", 16, Q("0.1065 in")))
sketch9.addConstraint(Sketcher.Constraint("DistanceY", -1, 1, 16, 3, Q("0.28125 in")))
sketch9.addConstraint(Sketcher.Constraint("DistanceY", -1, 1, 18, 3, Q("3.71875 in")))
sketch9.addConstraint(Sketcher.Constraint("DistanceY", -1, 1, 0, 2, Q("0.125 in")))
sketch9.addConstraint(Sketcher.Constraint("DistanceY", -1, 1, 10, 2, Q("3.875 in")))
sketch9.addConstraint(Sketcher.Constraint("DistanceY", 0, 2, 0, 1, Q("24 mm")))
sketch9.addConstraint(Sketcher.Constraint("DistanceX", 17, 3, 16, 3, Q("83.3551 mm")))
sketch9.addConstraint(Sketcher.Constraint("DistanceX", 1, 1, 1, 2, Q("9.532924 mm")))
sketch9.addConstraint(Sketcher.Constraint("DistanceX", 16, 3, -1, 1, Q("24.64566 mm")))
sketch9.addConstraint(Sketcher.Constraint("DistanceX", 1, 2, -1, 1, Q("4.717278 mm")))
sketch9.addConstraint(Sketcher.Constraint("DistanceX", 4, 2, -1, 1, Q("127.929142 mm")))
pocket3 = doc.addObject("PartDesign::Pocket", "Pocket002")
body.addObject(pocket3)
pocket3.Profile = sketch9
pocket3.Type = "ThroughAll"

sketch10 = doc.addObject("Sketcher::SketchObject", "Sketch009")
body.addObject(sketch10)
sketch10.AttachmentSupport = (doc.YZ_Plane, [""])
sketch10.MapMode = "FlatFace"
sketch10.AttachmentOffset = App.Placement(Vector(0, 0, -5.2896 * 25.4), App.Rotation())
sketch10.addGeometry(Part.Circle(Vector(14.632788, 50.8, 0), Vector(0, 0, 1), 1.7272), False)
sketch10.addConstraint(Sketcher.Constraint("Diameter", 0, Q("0.136 in")))
sketch10.addConstraint(Sketcher.Constraint("DistanceY", -1, 1, 0, 3, Q("2 in")))
sketch10.addConstraint(Sketcher.Constraint("DistanceX", -1, 1, 0, 3, Q("14.632788 mm")))
pocket4 = doc.addObject("PartDesign::Pocket", "Pocket003")
body.addObject(pocket4)
pocket4.Profile = sketch10
pocket4.Length = Q("0.0673 in")
pocket4.Reversed = True

doc.recompute()
